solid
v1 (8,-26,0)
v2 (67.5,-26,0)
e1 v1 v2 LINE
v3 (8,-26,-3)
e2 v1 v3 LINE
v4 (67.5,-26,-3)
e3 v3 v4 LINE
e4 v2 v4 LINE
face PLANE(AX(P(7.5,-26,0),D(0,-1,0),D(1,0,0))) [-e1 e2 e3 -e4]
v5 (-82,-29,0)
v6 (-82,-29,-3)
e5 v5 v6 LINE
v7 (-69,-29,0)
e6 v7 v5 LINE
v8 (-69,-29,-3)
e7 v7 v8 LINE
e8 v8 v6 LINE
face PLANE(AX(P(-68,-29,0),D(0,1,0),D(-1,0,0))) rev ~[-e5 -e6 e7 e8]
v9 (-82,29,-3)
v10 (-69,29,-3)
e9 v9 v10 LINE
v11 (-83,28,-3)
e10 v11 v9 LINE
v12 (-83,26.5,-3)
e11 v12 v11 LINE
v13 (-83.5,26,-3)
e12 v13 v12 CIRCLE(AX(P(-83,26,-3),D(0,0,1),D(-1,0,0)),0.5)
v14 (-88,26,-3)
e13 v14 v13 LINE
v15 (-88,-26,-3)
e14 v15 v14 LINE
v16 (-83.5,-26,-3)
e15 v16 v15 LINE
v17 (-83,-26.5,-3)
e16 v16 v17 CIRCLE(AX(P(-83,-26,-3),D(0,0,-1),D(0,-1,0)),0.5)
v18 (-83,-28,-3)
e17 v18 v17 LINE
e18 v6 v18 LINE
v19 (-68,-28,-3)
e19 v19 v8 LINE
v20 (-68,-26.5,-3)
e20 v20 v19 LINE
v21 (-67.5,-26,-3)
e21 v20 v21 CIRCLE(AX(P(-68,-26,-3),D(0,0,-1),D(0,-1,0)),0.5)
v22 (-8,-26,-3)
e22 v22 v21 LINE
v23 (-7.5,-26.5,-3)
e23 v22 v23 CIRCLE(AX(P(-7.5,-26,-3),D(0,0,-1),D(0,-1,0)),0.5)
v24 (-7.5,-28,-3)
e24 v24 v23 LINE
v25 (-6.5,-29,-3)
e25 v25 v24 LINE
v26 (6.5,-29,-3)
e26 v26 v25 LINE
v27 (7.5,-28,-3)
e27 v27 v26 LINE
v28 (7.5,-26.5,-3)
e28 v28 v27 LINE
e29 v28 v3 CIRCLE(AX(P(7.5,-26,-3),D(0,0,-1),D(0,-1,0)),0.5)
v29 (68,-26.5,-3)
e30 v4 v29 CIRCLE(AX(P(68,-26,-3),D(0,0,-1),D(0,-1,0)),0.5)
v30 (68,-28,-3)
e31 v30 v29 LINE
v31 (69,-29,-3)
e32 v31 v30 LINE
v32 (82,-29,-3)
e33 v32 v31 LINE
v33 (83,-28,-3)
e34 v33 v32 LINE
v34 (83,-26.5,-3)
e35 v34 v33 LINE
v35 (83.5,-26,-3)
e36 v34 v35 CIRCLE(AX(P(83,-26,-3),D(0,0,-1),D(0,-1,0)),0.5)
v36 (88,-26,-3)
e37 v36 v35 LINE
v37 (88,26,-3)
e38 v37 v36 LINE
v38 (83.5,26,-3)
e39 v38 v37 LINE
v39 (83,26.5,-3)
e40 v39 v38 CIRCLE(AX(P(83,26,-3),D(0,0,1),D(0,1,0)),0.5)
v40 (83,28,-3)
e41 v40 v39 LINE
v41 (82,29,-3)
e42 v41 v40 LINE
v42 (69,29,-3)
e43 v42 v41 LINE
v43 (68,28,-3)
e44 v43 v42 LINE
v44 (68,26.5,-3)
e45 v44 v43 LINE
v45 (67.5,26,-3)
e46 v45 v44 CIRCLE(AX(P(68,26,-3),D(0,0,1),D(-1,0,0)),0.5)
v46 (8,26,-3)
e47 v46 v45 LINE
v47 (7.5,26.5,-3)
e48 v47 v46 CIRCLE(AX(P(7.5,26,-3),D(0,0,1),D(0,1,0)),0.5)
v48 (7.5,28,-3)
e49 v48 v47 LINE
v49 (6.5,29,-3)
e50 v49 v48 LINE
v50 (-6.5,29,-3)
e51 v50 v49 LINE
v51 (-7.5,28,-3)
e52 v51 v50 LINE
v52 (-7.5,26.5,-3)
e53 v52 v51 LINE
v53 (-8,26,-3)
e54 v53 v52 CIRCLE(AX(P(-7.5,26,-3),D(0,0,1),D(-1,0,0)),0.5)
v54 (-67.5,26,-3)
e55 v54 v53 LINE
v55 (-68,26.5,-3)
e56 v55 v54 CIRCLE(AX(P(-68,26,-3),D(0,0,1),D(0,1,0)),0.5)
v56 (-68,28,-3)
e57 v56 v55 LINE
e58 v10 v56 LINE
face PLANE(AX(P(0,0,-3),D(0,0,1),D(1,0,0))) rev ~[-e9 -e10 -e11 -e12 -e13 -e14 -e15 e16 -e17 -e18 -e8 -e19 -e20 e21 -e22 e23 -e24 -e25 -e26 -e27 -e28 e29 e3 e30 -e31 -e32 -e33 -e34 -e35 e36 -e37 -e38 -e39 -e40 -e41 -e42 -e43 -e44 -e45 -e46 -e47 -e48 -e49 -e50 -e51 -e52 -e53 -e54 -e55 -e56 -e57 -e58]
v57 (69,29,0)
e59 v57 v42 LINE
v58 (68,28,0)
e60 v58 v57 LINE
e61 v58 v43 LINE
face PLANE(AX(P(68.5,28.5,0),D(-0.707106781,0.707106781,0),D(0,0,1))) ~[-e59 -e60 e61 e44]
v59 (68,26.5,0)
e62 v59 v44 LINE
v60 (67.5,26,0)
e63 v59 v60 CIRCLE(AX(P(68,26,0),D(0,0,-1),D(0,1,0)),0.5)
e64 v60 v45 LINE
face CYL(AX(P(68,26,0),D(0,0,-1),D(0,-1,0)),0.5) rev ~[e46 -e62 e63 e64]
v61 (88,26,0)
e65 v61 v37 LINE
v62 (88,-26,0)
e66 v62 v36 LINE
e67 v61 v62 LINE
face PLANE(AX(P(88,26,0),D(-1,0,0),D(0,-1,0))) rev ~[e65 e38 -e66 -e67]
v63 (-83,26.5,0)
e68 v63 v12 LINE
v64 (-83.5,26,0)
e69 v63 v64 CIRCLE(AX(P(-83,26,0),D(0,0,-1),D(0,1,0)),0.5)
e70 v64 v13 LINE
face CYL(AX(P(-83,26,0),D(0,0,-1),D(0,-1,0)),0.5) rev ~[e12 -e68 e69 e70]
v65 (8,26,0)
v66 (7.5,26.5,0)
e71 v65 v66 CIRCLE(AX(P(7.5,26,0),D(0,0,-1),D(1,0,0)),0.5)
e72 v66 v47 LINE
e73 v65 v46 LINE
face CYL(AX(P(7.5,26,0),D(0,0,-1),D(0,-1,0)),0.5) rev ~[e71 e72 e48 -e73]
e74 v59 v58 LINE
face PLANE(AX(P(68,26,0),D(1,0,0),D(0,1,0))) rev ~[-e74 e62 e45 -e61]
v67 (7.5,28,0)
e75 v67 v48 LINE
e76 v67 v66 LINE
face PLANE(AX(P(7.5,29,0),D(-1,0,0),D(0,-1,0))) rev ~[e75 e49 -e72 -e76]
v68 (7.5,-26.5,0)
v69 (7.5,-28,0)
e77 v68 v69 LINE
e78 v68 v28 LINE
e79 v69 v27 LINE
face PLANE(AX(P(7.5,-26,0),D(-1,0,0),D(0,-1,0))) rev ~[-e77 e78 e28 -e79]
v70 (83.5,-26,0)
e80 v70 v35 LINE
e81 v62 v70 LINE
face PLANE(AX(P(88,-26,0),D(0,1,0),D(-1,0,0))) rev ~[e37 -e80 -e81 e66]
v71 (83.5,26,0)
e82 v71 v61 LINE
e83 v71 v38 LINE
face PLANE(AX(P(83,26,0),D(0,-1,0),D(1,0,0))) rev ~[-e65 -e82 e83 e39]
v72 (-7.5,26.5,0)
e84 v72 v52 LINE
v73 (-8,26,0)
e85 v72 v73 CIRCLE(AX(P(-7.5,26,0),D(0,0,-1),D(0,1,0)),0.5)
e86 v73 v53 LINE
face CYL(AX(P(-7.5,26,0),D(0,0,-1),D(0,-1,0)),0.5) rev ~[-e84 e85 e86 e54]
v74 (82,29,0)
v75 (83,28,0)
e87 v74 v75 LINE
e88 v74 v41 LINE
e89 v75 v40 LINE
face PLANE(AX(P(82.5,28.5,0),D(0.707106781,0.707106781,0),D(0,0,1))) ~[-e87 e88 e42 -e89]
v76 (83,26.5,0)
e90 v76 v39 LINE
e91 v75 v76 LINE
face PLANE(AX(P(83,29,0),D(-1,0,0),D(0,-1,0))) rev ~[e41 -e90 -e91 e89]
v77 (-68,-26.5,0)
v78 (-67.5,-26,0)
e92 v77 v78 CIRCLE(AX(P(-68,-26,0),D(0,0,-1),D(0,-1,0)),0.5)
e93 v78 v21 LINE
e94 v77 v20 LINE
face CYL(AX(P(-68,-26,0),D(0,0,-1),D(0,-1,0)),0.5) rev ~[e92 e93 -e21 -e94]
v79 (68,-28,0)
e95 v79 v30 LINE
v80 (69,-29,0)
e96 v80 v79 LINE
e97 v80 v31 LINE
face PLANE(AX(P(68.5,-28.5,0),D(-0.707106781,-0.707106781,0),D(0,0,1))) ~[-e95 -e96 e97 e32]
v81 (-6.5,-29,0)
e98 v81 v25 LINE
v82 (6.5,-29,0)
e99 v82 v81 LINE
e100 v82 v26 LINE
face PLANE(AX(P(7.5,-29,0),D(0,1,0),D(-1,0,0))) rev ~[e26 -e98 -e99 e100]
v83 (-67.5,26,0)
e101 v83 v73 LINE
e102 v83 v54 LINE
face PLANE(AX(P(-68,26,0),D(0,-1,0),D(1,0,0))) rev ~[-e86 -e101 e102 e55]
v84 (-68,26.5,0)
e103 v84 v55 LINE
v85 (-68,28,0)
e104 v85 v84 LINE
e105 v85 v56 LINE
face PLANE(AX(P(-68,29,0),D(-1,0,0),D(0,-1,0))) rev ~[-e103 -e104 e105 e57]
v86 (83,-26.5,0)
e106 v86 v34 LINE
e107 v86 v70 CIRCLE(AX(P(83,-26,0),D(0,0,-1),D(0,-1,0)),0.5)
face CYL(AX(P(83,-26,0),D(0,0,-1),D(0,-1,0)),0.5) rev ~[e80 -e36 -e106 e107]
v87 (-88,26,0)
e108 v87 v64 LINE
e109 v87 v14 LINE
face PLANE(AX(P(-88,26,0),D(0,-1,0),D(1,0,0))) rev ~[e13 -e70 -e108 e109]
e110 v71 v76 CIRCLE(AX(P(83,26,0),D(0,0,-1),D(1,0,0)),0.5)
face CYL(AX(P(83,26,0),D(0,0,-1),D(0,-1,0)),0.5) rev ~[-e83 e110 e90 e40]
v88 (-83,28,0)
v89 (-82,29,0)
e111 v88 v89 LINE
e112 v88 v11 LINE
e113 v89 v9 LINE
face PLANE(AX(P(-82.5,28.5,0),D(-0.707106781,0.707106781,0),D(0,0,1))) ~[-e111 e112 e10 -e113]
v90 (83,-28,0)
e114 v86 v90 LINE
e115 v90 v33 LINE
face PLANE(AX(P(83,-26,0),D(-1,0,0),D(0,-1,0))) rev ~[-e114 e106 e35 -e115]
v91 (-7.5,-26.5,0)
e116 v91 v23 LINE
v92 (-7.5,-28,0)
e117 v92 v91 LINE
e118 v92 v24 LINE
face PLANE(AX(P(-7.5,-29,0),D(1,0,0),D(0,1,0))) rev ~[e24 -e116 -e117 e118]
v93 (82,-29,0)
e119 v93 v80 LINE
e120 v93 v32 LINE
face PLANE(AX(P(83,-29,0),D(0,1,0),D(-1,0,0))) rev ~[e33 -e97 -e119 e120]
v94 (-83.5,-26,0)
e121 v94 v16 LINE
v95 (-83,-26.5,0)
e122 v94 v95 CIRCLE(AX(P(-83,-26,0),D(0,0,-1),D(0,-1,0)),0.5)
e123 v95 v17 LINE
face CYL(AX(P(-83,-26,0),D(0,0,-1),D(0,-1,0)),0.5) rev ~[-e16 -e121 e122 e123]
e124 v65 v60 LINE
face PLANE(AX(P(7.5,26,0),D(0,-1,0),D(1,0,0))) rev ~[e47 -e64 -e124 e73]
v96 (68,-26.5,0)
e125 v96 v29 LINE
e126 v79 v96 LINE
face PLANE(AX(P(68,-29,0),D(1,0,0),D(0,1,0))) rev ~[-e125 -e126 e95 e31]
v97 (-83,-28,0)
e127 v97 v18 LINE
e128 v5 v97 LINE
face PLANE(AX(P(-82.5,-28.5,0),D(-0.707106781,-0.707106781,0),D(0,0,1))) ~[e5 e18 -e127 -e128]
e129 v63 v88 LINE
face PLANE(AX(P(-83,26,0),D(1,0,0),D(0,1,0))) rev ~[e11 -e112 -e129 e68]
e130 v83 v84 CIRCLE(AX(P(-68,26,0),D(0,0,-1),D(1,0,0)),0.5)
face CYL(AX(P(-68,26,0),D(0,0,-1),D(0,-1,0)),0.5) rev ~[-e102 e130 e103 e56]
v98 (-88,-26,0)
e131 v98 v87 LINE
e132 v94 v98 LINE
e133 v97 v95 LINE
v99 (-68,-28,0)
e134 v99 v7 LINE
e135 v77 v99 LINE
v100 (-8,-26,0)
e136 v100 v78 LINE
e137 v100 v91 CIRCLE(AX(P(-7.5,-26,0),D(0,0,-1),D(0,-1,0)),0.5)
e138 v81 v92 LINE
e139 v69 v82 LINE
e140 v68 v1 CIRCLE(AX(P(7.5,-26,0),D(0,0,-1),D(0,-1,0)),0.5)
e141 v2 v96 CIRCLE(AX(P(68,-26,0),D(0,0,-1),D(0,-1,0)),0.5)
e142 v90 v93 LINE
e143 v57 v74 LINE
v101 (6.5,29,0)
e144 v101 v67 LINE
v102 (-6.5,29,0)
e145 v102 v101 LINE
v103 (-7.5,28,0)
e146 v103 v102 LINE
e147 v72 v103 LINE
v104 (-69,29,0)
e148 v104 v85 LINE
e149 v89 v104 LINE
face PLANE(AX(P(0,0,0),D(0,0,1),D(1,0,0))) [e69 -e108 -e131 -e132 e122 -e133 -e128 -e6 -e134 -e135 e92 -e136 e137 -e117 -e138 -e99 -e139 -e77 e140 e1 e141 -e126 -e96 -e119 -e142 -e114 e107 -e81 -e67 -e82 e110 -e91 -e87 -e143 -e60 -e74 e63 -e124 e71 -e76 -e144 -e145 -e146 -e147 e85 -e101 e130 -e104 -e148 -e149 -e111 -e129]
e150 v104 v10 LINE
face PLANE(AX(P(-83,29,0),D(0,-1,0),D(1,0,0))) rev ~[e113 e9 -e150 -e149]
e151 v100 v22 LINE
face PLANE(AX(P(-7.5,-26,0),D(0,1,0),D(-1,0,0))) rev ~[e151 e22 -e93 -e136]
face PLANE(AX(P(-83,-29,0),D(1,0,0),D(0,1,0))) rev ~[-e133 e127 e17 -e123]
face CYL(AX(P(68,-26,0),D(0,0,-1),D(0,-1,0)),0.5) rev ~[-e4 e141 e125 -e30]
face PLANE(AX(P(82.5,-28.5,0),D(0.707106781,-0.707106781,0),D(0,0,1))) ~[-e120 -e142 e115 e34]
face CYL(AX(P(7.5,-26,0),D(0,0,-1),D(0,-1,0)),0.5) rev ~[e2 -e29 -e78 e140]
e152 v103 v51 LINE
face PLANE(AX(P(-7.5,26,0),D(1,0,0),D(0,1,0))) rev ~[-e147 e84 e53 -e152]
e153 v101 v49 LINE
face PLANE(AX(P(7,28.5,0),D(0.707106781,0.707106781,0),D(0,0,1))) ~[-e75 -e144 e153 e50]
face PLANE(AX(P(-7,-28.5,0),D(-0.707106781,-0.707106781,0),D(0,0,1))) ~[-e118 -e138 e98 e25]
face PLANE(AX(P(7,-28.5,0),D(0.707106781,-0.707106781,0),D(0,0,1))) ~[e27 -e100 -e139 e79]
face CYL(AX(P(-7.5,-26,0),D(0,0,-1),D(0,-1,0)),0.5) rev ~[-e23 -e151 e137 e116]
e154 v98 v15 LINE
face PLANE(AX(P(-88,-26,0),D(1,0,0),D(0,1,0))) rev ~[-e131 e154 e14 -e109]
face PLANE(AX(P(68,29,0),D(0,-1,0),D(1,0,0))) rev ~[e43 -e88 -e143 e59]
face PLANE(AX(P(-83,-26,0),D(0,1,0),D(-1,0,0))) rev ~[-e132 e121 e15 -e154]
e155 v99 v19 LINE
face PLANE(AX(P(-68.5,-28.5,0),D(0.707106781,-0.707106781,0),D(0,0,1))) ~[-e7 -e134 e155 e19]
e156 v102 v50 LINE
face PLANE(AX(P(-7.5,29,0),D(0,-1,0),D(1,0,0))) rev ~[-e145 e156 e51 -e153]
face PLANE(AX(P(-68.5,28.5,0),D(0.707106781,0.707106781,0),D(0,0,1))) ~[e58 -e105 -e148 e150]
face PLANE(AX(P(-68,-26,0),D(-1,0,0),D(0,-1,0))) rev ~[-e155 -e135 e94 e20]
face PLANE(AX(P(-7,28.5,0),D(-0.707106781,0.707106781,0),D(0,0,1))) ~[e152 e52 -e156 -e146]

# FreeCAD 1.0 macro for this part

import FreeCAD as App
import Part
import Sketcher
from FreeCAD import Vector
Q = App.Units.Quantity


def edges_at(feature, points):
    """Names of the edges that pass closest to the given points."""
    edges = feature.Shape.Edges
    near = lambda p: min(range(len(edges)), key=lambda i: edges[i].distToShape(Part.Vertex(*p))[0])
    return sorted({f"Edge{near(p) + 1}" for p in points})


def add_polygon(sketch, points):
    """Adds a closed chain of lines whose ends are joined by coincident constraints."""
    first, n = sketch.GeometryCount, len(points)
    for a, b in zip(points, points[1:] + points[:1]):
        sketch.addGeometry(Part.LineSegment(App.Vector(*a, 0), App.Vector(*b, 0)), False)
    for i in range(n):
        sketch.addConstraint(Sketcher.Constraint("Coincident", first + i, 2, first + (i + 1) % n, 1))

doc = App.newDocument("Part")
params = doc.addObject("Spreadsheet::Sheet", "Params")
for row, (alias, value) in enumerate([
    ("sketch1_width", "5 mm"),
    ("sketch1_width2", "15 mm"),
    ("sketch1_height", "52 mm"),
    ("sketch1_height2", "3 mm"),
    ("sketch1_width3", "60.5 mm"),
    ("pad1_length", "3 mm"),
    ("sketch2_diameter", "1 mm"),
    ("hole_diameter", "1 mm"),
    ("chamfer_size", "1 mm"),
], start=1):
    params.set(f"A{row}", alias)
    params.set(f"B{row}", "=" + value)
    params.setAlias(f"B{row}", alias)

body = doc.addObject("PartDesign::Body", "Body")

sketch1 = doc.addObject("Sketcher::SketchObject", "Sketch")
body.addObject(sketch1)
sketch1.AttachmentSupport = (doc.XY_Plane, [""])
sketch1.MapMode = "FlatFace"
add_polygon(sketch1, [(-88, 26), (-88, -26), (-83, -26), (-83, -29), (-68, -29), (-68, -26), (-7.5, -26), (-7.5, -29), (7.5, -29), (7.5, -26), (68, -26), (68, -29), (83, -29), (83, -26), (88, -26), (88, 26), (83, 26), (83, 29), (68, 29), (68, 26), (7.5, 26), (7.5, 29), (-7.5, 29), (-7.5, 26), (-68, 26), (-68, 29), (-83, 29), (-83, 26)])
sketch1.addConstraint([
    Sketcher.Constraint("Vertical", 0),
    Sketcher.Constraint("Horizontal", 1),
    Sketcher.Constraint("Vertical", 2),
    Sketcher.Constraint("Horizontal", 3),
    Sketcher.Constraint("Vertical", 4),
    Sketcher.Constraint("Horizontal", 5),
    Sketcher.Constraint("Vertical", 6),
    Sketcher.Constraint("Horizontal", 7),
    Sketcher.Constraint("Vertical", 8),
    Sketcher.Constraint("Horizontal", 9),
    Sketcher.Constraint("Vertical", 10),
    Sketcher.Constraint("Horizontal", 11),
    Sketcher.Constraint("Vertical", 12),
    Sketcher.Constraint("Horizontal", 13),
    Sketcher.Constraint("Vertical", 14),
    Sketcher.Constraint("Horizontal", 15),
    Sketcher.Constraint("Vertical", 16),
    Sketcher.Constraint("Horizontal", 17),
    Sketcher.Constraint("Vertical", 18),
    Sketcher.Constraint("Horizontal", 19),
    Sketcher.Constraint("Vertical", 20),
    Sketcher.Constraint("Horizontal", 21),
    Sketcher.Constraint("Vertical", 22),
    Sketcher.Constraint("Horizontal", 23),
    Sketcher.Constraint("Vertical", 24),
    Sketcher.Constraint("Horizontal", 25),
    Sketcher.Constraint("Vertical", 26),
    Sketcher.Constraint("Horizontal", 27),
    Sketcher.Constraint("Symmetric", 0, 2, 14, 2, -1, 1),
    Sketcher.Constraint("Symmetric", 2, 2, 16, 2, -1, 1),
    Sketcher.Constraint("Symmetric", 4, 2, 18, 2, -1, 1),
    Sketcher.Constraint("Symmetric", 6, 2, 20, 2, -1, 1),
    Sketcher.Constraint("Symmetric", 8, 2, 22, 2, -1, 1),
    Sketcher.Constraint("Symmetric", 10, 2, 24, 2, -1, 1),
    Sketcher.Constraint("Symmetric", 12, 2, 26, 2, -1, 1),
    Sketcher.Constraint("Symmetric", 5, 2, 8, 2, -2),
    Sketcher.Constraint("Symmetric", 3, 2, 10, 2, -2),
    Sketcher.Constraint("Symmetric", 1, 2, 12, 2, -2),
    Sketcher.Constraint("Horizontal", 1, 2, 4, 2),
    Sketcher.Constraint("Horizontal", 3, 2, 6, 2),
    Sketcher.Constraint("Equal", 3, 7),
    Sketcher.Constraint("DistanceX", 1, 1, 1, 2, Q("5 mm")),
    Sketcher.Constraint("DistanceX", 3, 1, 3, 2, Q("15 mm")),
    Sketcher.Constraint("DistanceY", 0, 2, 0, 1, Q("52 mm")),
    Sketcher.Constraint("DistanceY", 2, 2, 2, 1, Q("3 mm")),
    Sketcher.Constraint("DistanceX", 5, 1, 5, 2, Q("60.5 mm")),
])
sketch1.setExpression("Constraints[69]", "Params.sketch1_width")
sketch1.setExpression("Constraints[70]", "Params.sketch1_width2")
sketch1.setExpression("Constraints[71]", "Params.sketch1_height")
sketch1.setExpression("Constraints[72]", "Params.sketch1_height2")
sketch1.setExpression("Constraints[73]", "Params.sketch1_width3")
pad1 = doc.addObject("PartDesign::Pad", "Pad")
body.addObject(pad1)
pad1.Profile = sketch1
pad1.setExpression("Length", "Params.pad1_length")
pad1.Reversed = True

sketch2 = doc.addObject("Sketcher::SketchObject", "Sketch001")
body.addObject(sketch2)
sketch2.AttachmentSupport = (doc.XY_Plane, [""])
sketch2.MapMode = "FlatFace"
sketch2.addGeometry([
    Part.Circle(Vector(7.5, 26, 0), Vector(0, 0, 1), 0.5),
    Part.Circle(Vector(-7.5, 26, 0), Vector(0, 0, 1), 0.5),
    Part.Circle(Vector(-83, 26, 0), Vector(0, 0, 1), 0.5),
    Part.Circle(Vector(-68, 26, 0), Vector(0, 0, 1), 0.5),
    Part.Circle(Vector(-83, -26, 0), Vector(0, 0, 1), 0.5),
    Part.Circle(Vector(-68, -26, 0), Vector(0, 0, 1), 0.5),
    Part.Circle(Vector(-7.5, -26, 0), Vector(0, 0, 1), 0.5),
    Part.Circle(Vector(7.5, -26, 0), Vector(0, 0, 1), 0.5),
    Part.Circle(Vector(68, -26, 0), Vector(0, 0, 1), 0.5),
    Part.Circle(Vector(83, -26, 0), Vector(0, 0, 1), 0.5),
    Part.Circle(Vector(68, 26, 0), Vector(0, 0, 1), 0.5),
    Part.Circle(Vector(83, 26, 0), Vector(0, 0, 1), 0.5),
], False)
sketch2.addConstraint([
    Sketcher.Constraint("Equal", 0, 1),
    Sketcher.Constraint("Equal", 1, 2),
    Sketcher.Constraint("Equal", 2, 3),
    Sketcher.Constraint("Equal", 3, 4),
    Sketcher.Constraint("Equal", 4, 5),
    Sketcher.Constraint("Equal", 5, 6),
    Sketcher.Constraint("Equal", 6, 7),
    Sketcher.Constraint("Equal", 7, 8),
    Sketcher.Constraint("Equal", 8, 9),
    Sketcher.Constraint("Equal", 9, 10),
    Sketcher.Constraint("Equal", 10, 11),
    Sketcher.Constraint("Symmetric", 0, 3, 6, 3, -1, 1),
    Sketcher.Constraint("Symmetric", 1, 3, 7, 3, -1, 1),
    Sketcher.Constraint("Symmetric", 3, 3, 8, 3, -1, 1),
    Sketcher.Constraint("Symmetric", 2, 3, 9, 3, -1, 1),
    Sketcher.Constraint("Symmetric", 5, 3, 10, 3, -1, 1),
    Sketcher.Constraint("Symmetric", 4, 3, 11, 3, -1, 1),
    Sketcher.Constraint("Symmetric", 0, 3, 1, 3, -2),
    Sketcher.Constraint("Symmetric", 5, 3, 8, 3, -2),
    Sketcher.Constraint("Symmetric", 4, 3, 9, 3, -2),
    Sketcher.Constraint("Horizontal", 1, 3, 2, 3),
    Sketcher.Constraint("Horizontal", 2, 3, 3, 3),
    Sketcher.Constraint("Diameter", 0, Q("1 mm")),
    Sketcher.Constraint("DistanceY", -1, 1, 0, 3, Q("26 mm")),
    Sketcher.Constraint("DistanceX", 2, 3, -1, 1, Q("83 mm")),
    Sketcher.Constraint("DistanceX", 3, 3, -1, 1, Q("68 mm")),
    Sketcher.Constraint("DistanceX", 1, 3, 0, 3, Q("15 mm")),
])
sketch2.setExpression("Constraints[22]", "Params.sketch2_diameter")
doc.recompute()
hole = doc.addObject("PartDesign::Hole", "Hole")
body.addObject(hole)
hole.Profile = sketch2
hole.ThreadType = "None"
hole.setExpression("Diameter", "Params.hole_diameter")
hole.DepthType = "ThroughAll"
doc.recompute()

chamfer = doc.addObject("PartDesign::Chamfer", "Chamfer")
body.addObject(chamfer)
chamfer.Base = (hole, edges_at(hole, [
    (-83, -29, -1.5),
    (-68, -29, -1.5),
    (-83, 29, -1.5),
    (-68, 29, -1.5),
    (-7.5, 29, -1.5),
    (7.5, 29, -1.5),
    (68, 29, -1.5),
    (83, 29, -1.5),
    (68, -29, -1.5),
    (83, -29, -1.5),
    (-7.5, -29, -1.5),
    (7.5, -29, -1.5),
]))
chamfer.setExpression("Size", "Params.chamfer_size")

doc.recompute()
